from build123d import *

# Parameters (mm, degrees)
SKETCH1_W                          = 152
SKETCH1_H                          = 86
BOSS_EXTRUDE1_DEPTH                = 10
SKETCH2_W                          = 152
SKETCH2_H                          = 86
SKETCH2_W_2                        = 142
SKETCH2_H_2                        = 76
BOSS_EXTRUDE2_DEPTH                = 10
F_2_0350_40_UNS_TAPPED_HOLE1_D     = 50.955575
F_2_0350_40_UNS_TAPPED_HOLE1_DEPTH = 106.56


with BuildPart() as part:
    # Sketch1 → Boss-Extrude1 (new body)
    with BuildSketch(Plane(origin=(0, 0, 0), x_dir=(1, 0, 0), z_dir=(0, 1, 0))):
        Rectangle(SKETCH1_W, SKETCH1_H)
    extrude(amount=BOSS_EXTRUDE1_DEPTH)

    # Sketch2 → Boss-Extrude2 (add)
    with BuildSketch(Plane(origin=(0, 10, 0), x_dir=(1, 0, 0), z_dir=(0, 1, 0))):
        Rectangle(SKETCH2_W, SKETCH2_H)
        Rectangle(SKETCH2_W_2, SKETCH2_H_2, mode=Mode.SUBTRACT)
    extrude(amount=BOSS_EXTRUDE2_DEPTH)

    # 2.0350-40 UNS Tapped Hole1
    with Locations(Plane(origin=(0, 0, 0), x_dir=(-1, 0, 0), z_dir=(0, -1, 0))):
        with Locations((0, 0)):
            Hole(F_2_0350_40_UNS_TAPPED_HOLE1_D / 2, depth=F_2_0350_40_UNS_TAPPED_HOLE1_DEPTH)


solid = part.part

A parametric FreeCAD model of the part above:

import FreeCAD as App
import Part
import Sketcher
from FreeCAD import Vector
Q = App.Units.Quantity

doc = App.newDocument("Part")
body = doc.addObject("PartDesign::Body", "Body")

# Sketch on XZ plane
sketch1 = body.newObject("Sketcher::SketchObject", "Sketch")
sketch1.AttachmentSupport = (doc.getObject("XZ_Plane"), [""])
sketch1.MapMode = "FlatFace"
sketch1.addGeometry(Part.LineSegment(Vector(-76, -43, 0), Vector(-76, 43, 0)), False)
sketch1.addGeometry(Part.LineSegment(Vector(-76, 43, 0), Vector(76, 43, 0)), False)
sketch1.addGeometry(Part.LineSegment(Vector(76, 43, 0), Vector(76, -43, 0)), False)
sketch1.addGeometry(Part.LineSegment(Vector(76, -43, 0), Vector(-76, -43, 0)), False)
sketch1.addConstraint(Sketcher.Constraint("Coincident", 0, 2, 1, 1))
sketch1.addConstraint(Sketcher.Constraint("Coincident", 1, 2, 2, 1))
sketch1.addConstraint(Sketcher.Constraint("Coincident", 2, 2, 3, 1))
sketch1.addConstraint(Sketcher.Constraint("Coincident", 3, 2, 0, 1))
sketch1.addConstraint(Sketcher.Constraint("Vertical", 0))
sketch1.addConstraint(Sketcher.Constraint("Horizontal", 1))
sketch1.addConstraint(Sketcher.Constraint("Vertical", 2))
sketch1.addConstraint(Sketcher.Constraint("Horizontal", 3))
sketch1.addConstraint(Sketcher.Constraint("Symmetric", 0, 2, 2, 2, -1, 1))
sketch1.addConstraint(Sketcher.Constraint("DistanceX", 1, 1, 1, 2, Q("152 mm")))
sketch1.addConstraint(Sketcher.Constraint("DistanceY", 0, 1, 0, 2, Q("86 mm")))
pad1 = body.newObject("PartDesign::Pad", "Pad")
pad1.Profile = sketch1
pad1.Length = 10
pad1.Reversed = True

# Sketch on XZ plane
sketch2 = body.newObject("Sketcher::SketchObject", "Sketch001")
sketch2.AttachmentSupport = (doc.getObject("XZ_Plane"), [""])
sketch2.MapMode = "FlatFace"
sketch2.AttachmentOffset = App.Placement(Vector(0, 0, -10), App.Rotation())
sketch2.addGeometry(Part.LineSegment(Vector(-76, -43, 0), Vector(-76, 43, 0)), False)
sketch2.addGeometry(Part.LineSegment(Vector(-76, 43, 0), Vector(76, 43, 0)), False)
sketch2.addGeometry(Part.LineSegment(Vector(76, 43, 0), Vector(76, -43, 0)), False)
sketch2.addGeometry(Part.LineSegment(Vector(76, -43, 0), Vector(-76, -43, 0)), False)
sketch2.addGeometry(Part.LineSegment(Vector(71, 38, 0), Vector(-71, 38, 0)), False)
sketch2.addGeometry(Part.LineSegment(Vector(-71, 38, 0), Vector(-71, -38, 0)), False)
sketch2.addGeometry(Part.LineSegment(Vector(-71, -38, 0), Vector(71, -38, 0)), False)
sketch2.addGeometry(Part.LineSegment(Vector(71, -38, 0), Vector(71, 38, 0)), False)
sketch2.addConstraint(Sketcher.Constraint("Coincident", 0, 2, 1, 1))
sketch2.addConstraint(Sketcher.Constraint("Coincident", 1, 2, 2, 1))
sketch2.addConstraint(Sketcher.Constraint("Coincident", 2, 2, 3, 1))
sketch2.addConstraint(Sketcher.Constraint("Coincident", 3, 2, 0, 1))
sketch2.addConstraint(Sketcher.Constraint("Coincident", 4, 2, 5, 1))
sketch2.addConstraint(Sketcher.Constraint("Coincident", 5, 2, 6, 1))
sketch2.addConstraint(Sketcher.Constraint("Coincident", 6, 2, 7, 1))
sketch2.addConstraint(Sketcher.Constraint("Coincident", 7, 2, 4, 1))
sketch2.addConstraint(Sketcher.Constraint("Vertical", 0))
sketch2.addConstraint(Sketcher.Constraint("Horizontal", 1))
sketch2.addConstraint(Sketcher.Constraint("Vertical", 2))
sketch2.addConstraint(Sketcher.Constraint("Horizontal", 3))
sketch2.addConstraint(Sketcher.Constraint("Horizontal", 4))
sketch2.addConstraint(Sketcher.Constraint("Vertical", 5))
sketch2.addConstraint(Sketcher.Constraint("Horizontal", 6))
sketch2.addConstraint(Sketcher.Constraint("Vertical", 7))
sketch2.addConstraint(Sketcher.Constraint("Symmetric", 0, 2, 2, 2, -1, 1))
sketch2.addConstraint(Sketcher.Constraint("Symmetric", 4, 2, 6, 2, -1, 1))
sketch2.addConstraint(Sketcher.Constraint("DistanceX", 1, 1, 1, 2, Q("152 mm")))
sketch2.addConstraint(Sketcher.Constraint("DistanceX", 4, 2, 4, 1, Q("142 mm")))
sketch2.addConstraint(Sketcher.Constraint("DistanceY", 0, 1, 0, 2, Q("86 mm")))
sketch2.addConstraint(Sketcher.Constraint("DistanceY", 5, 2, 5, 1, Q("76 mm")))
pad2 = body.newObject("PartDesign::Pad", "Pad001")
pad2.Profile = sketch2
pad2.Length = 10
pad2.Reversed = True

# Sketch on XZ plane
sketch3 = body.newObject("Sketcher::SketchObject", "Sketch002")
sketch3.AttachmentSupport = (doc.getObject("XZ_Plane"), [""])
sketch3.MapMode = "FlatFace"
sketch3.addGeometry(Part.Circle(Vector(0, 0, 0), Vector(0, 0, 1), 25.477788), False)
sketch3.addConstraint(Sketcher.Constraint("Coincident", 0, 3, -1, 1))
sketch3.addConstraint(Sketcher.Constraint("Diameter", 0, Q("50.955575 mm")))
doc.recompute()
hole = body.newObject("PartDesign::Hole", "Hole")
hole.Profile = sketch3
hole.ThreadType = "None"
hole.Diameter = 50.955575
hole.DepthType = "Dimension"
hole.Depth = 106.56
hole.DrillPoint = "Flat"

doc.recompute()
